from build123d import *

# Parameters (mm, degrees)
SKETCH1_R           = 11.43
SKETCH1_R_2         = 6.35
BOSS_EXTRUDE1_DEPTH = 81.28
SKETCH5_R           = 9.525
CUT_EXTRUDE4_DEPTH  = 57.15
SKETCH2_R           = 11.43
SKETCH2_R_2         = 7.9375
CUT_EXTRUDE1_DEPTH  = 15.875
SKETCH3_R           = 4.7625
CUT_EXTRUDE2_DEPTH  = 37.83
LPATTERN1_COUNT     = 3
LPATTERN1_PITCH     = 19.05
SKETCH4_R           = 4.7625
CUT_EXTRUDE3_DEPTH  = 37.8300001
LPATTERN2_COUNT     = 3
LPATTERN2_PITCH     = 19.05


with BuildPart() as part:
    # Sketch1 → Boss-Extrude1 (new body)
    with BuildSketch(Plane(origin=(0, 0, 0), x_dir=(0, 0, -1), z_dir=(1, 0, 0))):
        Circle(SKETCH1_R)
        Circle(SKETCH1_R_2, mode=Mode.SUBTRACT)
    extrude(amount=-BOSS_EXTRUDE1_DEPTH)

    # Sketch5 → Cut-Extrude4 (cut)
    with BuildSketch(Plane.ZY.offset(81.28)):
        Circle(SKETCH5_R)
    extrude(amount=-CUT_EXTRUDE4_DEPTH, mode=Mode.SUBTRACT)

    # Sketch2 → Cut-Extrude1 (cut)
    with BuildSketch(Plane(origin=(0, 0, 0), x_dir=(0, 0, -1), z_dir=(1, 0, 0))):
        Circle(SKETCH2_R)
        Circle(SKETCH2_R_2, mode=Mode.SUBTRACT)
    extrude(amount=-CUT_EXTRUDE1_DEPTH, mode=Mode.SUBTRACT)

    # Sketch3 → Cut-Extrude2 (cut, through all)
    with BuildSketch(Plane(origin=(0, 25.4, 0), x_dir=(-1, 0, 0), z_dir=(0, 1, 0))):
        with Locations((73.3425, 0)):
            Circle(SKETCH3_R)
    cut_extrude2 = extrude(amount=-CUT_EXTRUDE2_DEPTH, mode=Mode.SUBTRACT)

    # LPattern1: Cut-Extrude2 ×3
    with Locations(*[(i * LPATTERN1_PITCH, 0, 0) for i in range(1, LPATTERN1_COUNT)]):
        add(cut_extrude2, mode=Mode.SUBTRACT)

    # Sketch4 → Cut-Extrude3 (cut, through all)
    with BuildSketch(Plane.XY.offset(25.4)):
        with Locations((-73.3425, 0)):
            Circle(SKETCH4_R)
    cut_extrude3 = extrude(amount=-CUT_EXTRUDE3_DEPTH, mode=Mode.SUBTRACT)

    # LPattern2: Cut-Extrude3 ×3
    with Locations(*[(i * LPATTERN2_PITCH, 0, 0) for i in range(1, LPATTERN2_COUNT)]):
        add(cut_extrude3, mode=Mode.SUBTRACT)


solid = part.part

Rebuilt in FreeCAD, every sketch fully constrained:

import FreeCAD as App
import Part
import Sketcher

V = App.Vector
Q = App.Units.Quantity

doc = App.newDocument("Part")
body = doc.addObject("PartDesign::Body", "Body")

# Sketch on YZ plane
sketch1 = body.newObject("Sketcher::SketchObject", "Sketch")
sketch1.AttachmentSupport = (doc.getObject("YZ_Plane"), [""])
sketch1.MapMode = "FlatFace"
sketch1.addGeometry([
    Part.Circle(V(0, 0, 0), V(0, 0, 1), 11),
    Part.Circle(V(0, 0, 0), V(0, 0, 1), 6),
], False)
sketch1.addConstraint([
    Sketcher.Constraint("Coincident", 0, 3, -1, 1),
    Sketcher.Constraint("Coincident", 1, 3, -1, 1),
    Sketcher.Constraint("Diameter", 0, Q("0.9 in")),
    Sketcher.Constraint("Diameter", 1, Q("0.5 in")),
])
pad1 = body.newObject("PartDesign::Pad", "Pad")
pad1.Profile = sketch1
pad1.Length = Q("3.2 in")
pad1.Reversed = True

# Sketch on YZ plane
sketch2 = body.newObject("Sketcher::SketchObject", "Sketch001")
sketch2.AttachmentSupport = (doc.getObject("YZ_Plane"), [""])
sketch2.MapMode = "FlatFace"
sketch2.AttachmentOffset = App.Placement(V(0, 0, -3.2 * 25.4), App.Rotation())
sketch2.addGeometry(Part.Circle(V(0, 0, 0), V(0, 0, 1), 10), False)
sketch2.addConstraint([
    Sketcher.Constraint("Coincident", 0, 3, -1, 1),
    Sketcher.Constraint("Diameter", 0, Q("0.75 in")),
])
pocket1 = body.newObject("PartDesign::Pocket", "Pocket")
pocket1.Profile = sketch2
pocket1.Length = Q("2.25 in")
pocket1.Reversed = True

# Sketch on YZ plane
sketch3 = body.newObject("Sketcher::SketchObject", "Sketch002")
sketch3.AttachmentSupport = (doc.getObject("YZ_Plane"), [""])
sketch3.MapMode = "FlatFace"
sketch3.addGeometry([
    Part.Circle(V(0, 0, 0), V(0, 0, 1), 11),
    Part.Circle(V(0, 0, 0), V(0, 0, 1), 8),
], False)
sketch3.addConstraint([
    Sketcher.Constraint("Coincident", 0, 3, -1, 1),
    Sketcher.Constraint("Coincident", 1, 3, -1, 1),
    Sketcher.Constraint("Diameter", 0, Q("0.9 in")),
    Sketcher.Constraint("Diameter", 1, Q("0.625 in")),
])
pocket2 = body.newObject("PartDesign::Pocket", "Pocket001")
pocket2.Profile = sketch3
pocket2.Length = Q("0.625 in")

# Sketch on XZ plane
sketch4 = body.newObject("Sketcher::SketchObject", "Sketch003")
sketch4.AttachmentSupport = (doc.getObject("XZ_Plane"), [""])
sketch4.MapMode = "FlatFace"
sketch4.AttachmentOffset = App.Placement(V(0, 0, -1 * 25.4), App.Rotation())
sketch4.addGeometry(Part.Circle(V(-73.3, 0, 0), V(0, 0, 1), 4.8), False)
sketch4.addConstraint([
    Sketcher.Constraint("PointOnObject", 0, 3, -1),
    Sketcher.Constraint("Diameter", 0, Q("0.375 in")),
    Sketcher.Constraint("DistanceX", 0, 3, -1, 1, Q("2.8875 in")),
])
pocket3 = body.newObject("PartDesign::Pocket", "Pocket002")
pocket3.Profile = sketch4
pocket3.Type = "ThroughAll"
pocket3.Reversed = True
doc.recompute()

linearpattern = body.newObject("PartDesign::LinearPattern", "LinearPattern")
linearpattern.Originals = [pocket3]
linearpattern.Direction = (doc.getObject("X_Axis"), [""])
linearpattern.Mode = "offset"
linearpattern.Offset = Q("0.75 in")
linearpattern.Occurrences = 3
body.Tip = linearpattern

# Sketch on XY plane
sketch5 = body.newObject("Sketcher::SketchObject", "Sketch004")
sketch5.AttachmentSupport = (doc.getObject("XY_Plane"), [""])
sketch5.MapMode = "FlatFace"
sketch5.AttachmentOffset = App.Placement(V(0, 0, 1 * 25.4), App.Rotation())
sketch5.addGeometry(Part.Circle(V(-73.3, 0, 0), V(0, 0, 1), 4.8), False)
sketch5.addConstraint([
    Sketcher.Constraint("PointOnObject", 0, 3, -1),
    Sketcher.Constraint("Diameter", 0, Q("0.375 in")),
    Sketcher.Constraint("DistanceX", 0, 3, -1, 1, Q("2.8875 in")),
])
pocket4 = body.newObject("PartDesign::Pocket", "Pocket003")
pocket4.Profile = sketch5
pocket4.Type = "ThroughAll"
doc.recompute()

linearpattern2 = body.newObject("PartDesign::LinearPattern", "LinearPattern001")
linearpattern2.Originals = [pocket4]
linearpattern2.Direction = (doc.getObject("X_Axis"), [""])
linearpattern2.Mode = "offset"
linearpattern2.Offset = Q("0.75 in")
linearpattern2.Occurrences = 3
body.Tip = linearpattern2

doc.recompute()
